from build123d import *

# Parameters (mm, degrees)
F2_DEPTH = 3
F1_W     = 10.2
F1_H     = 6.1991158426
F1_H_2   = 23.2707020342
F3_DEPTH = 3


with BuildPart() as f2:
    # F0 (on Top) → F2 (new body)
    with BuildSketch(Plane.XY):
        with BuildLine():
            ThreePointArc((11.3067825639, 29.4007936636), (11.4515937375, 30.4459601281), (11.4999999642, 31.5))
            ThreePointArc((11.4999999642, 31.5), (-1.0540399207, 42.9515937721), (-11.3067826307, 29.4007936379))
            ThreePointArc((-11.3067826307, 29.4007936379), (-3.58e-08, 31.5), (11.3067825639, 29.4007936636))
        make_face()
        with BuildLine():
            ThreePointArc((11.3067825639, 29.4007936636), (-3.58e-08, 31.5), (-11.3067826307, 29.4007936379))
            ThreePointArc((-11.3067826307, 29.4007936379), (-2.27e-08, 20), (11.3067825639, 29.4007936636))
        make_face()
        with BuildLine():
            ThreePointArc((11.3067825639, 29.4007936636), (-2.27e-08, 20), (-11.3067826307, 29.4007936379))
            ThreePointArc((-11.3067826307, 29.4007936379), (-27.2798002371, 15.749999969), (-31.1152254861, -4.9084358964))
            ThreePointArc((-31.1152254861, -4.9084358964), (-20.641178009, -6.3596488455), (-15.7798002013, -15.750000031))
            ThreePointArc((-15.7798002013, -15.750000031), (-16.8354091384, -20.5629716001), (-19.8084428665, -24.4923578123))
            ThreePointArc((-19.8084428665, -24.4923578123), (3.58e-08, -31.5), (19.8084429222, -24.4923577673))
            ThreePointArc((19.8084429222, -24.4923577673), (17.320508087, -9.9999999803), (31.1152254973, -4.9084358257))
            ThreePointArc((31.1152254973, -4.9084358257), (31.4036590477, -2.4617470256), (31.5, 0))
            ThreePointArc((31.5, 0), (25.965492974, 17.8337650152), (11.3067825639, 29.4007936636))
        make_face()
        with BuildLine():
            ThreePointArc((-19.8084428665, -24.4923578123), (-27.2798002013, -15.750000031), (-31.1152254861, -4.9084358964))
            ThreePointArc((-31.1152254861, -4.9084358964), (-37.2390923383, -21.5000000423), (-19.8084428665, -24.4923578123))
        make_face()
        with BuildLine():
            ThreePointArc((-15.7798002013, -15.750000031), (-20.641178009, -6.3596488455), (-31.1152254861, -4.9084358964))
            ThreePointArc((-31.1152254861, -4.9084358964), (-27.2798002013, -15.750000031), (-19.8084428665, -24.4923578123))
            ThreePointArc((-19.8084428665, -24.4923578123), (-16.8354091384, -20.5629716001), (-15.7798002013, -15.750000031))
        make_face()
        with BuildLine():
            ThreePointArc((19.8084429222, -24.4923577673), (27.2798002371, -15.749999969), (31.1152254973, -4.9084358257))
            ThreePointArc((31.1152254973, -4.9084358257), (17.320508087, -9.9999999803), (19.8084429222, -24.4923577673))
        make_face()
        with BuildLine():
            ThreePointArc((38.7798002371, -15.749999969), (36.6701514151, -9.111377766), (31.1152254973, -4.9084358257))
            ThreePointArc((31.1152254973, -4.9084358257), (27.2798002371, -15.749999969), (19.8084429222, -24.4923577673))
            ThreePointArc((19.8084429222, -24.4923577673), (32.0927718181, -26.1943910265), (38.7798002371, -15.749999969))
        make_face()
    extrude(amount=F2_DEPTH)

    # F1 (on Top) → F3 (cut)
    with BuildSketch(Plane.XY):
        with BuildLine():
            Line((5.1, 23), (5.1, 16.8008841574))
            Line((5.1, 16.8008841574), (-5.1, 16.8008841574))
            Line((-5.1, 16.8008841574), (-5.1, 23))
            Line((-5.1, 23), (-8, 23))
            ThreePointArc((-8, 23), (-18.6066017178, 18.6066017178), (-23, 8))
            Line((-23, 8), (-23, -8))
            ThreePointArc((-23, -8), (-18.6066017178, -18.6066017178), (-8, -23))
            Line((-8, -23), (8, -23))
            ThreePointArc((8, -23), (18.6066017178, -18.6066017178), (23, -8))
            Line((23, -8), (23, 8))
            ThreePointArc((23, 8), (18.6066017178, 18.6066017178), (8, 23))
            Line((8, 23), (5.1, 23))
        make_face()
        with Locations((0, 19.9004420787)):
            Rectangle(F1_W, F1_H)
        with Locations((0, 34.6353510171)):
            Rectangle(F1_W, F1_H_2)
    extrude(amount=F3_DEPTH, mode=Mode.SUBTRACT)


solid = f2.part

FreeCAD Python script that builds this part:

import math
import FreeCAD as App
import Part
import Sketcher

doc = App.newDocument("Part")
body = doc.addObject("PartDesign::Body", "Body")

# Sketch on XY plane
sketch1 = doc.addObject("Sketcher::SketchObject", "Sketch")
body.addObject(sketch1)
sketch1.AttachmentSupport = (doc.XY_Plane, [""])
sketch1.MapMode = "FlatFace"
sketch1.addGeometry([
    Part.ArcOfCircle(Part.Circle(App.Vector(0, 31.5, 0), App.Vector(0, 0, 1), 11.5), math.radians(-10.52), math.radians(0)),  # 0
    Part.ArcOfCircle(Part.Circle(App.Vector(0, 31.5, 0), App.Vector(0, 0, 1), 11.5), math.radians(0), math.radians(191)),  # 1
    Part.ArcOfCircle(Part.Circle(App.Vector(0, 0, 0), App.Vector(0, 0, 1), 31.5), math.radians(111), math.radians(189)),  # 2
    Part.ArcOfCircle(Part.Circle(App.Vector(-27.3, -15.8, 0), App.Vector(0, 0, 1), 11.5), math.radians(109), math.radians(311)),  # 3
    Part.ArcOfCircle(Part.Circle(App.Vector(0, 0, 0), App.Vector(0, 0, 1), 31.5), math.radians(-129), math.radians(-51)),  # 4
    Part.ArcOfCircle(Part.Circle(App.Vector(27.3, -15.7, 0), App.Vector(0, 0, 1), 11.5), math.radians(-131), math.radians(0)),  # 5
    Part.ArcOfCircle(Part.Circle(App.Vector(27.3, -15.7, 0), App.Vector(0, 0, 1), 11.5), math.radians(0), math.radians(71)),  # 6
    Part.ArcOfCircle(Part.Circle(App.Vector(0, 0, 0), App.Vector(0, 0, 1), 31.5), math.radians(-8.96), math.radians(0)),  # 7
    Part.ArcOfCircle(Part.Circle(App.Vector(0, 0, 0), App.Vector(0, 0, 1), 31.5), math.radians(0), math.radians(69)),  # 8
], False)
sketch1.addConstraint([
    Sketcher.Constraint("Tangent", 0, 2, 1, 1),
    Sketcher.Constraint("Coincident", 1, 2, 2, 1),
    Sketcher.Constraint("Coincident", 2, 2, 3, 1),
    Sketcher.Constraint("Coincident", 3, 2, 4, 1),
    Sketcher.Constraint("Coincident", 4, 2, 5, 1),
    Sketcher.Constraint("Tangent", 5, 2, 6, 1),
    Sketcher.Constraint("Coincident", 6, 2, 7, 1),
    Sketcher.Constraint("Tangent", 7, 2, 8, 1),
    Sketcher.Constraint("Coincident", 8, 2, 0, 1),
    Sketcher.Constraint("Coincident", 2, 3, -1, 1),
    Sketcher.Constraint("Coincident", 4, 3, -1, 1),
    Sketcher.Constraint("Coincident", 7, 3, -1, 1),
    Sketcher.Constraint("Equal", 0, 1),
    Sketcher.Constraint("Equal", 1, 3),
    Sketcher.Constraint("Equal", 2, 4),
    Sketcher.Constraint("Equal", 3, 5),
    Sketcher.Constraint("Equal", 5, 6),
    Sketcher.Constraint("Equal", 4, 7),
    Sketcher.Constraint("Equal", 7, 8),
    Sketcher.Constraint("Symmetric", 3, 3, 5, 3, -2),
    Sketcher.Constraint("PointOnObject", 0, 3, -2),
    Sketcher.Constraint("PointOnObject", 7, 2, -1),
    Sketcher.Constraint("Horizontal", 1, 3, 0, 2),
    Sketcher.Constraint("Horizontal", 6, 3, 5, 2),
    Sketcher.Constraint("Radius", 0, 11.5),
    Sketcher.Constraint("Radius", 2, 31.5),
    Sketcher.Constraint("DistanceY", -1, 1, 0, 3, 31.5),
    Sketcher.Constraint("DistanceY", 3, 3, -1, 1, 15.75),
    Sketcher.Constraint("DistanceX", 3, 3, -1, 1, 27.2798),
])
pad1 = doc.addObject("PartDesign::Pad", "Pad")
body.addObject(pad1)
pad1.Profile = sketch1
pad1.Length = 3

# Sketch on XY plane
sketch2 = doc.addObject("Sketcher::SketchObject", "Sketch001")
body.addObject(sketch2)
sketch2.AttachmentSupport = (doc.XY_Plane, [""])
sketch2.MapMode = "FlatFace"
sketch2.addGeometry([
    Part.ArcOfCircle(Part.Circle(App.Vector(-8, 8, 0), App.Vector(0, 0, 1), 15), math.radians(90), math.radians(180)),  # 0
    Part.LineSegment(App.Vector(-23, 8, 0), App.Vector(-23, -8, 0)),  # 1
    Part.ArcOfCircle(Part.Circle(App.Vector(-8, -8, 0), App.Vector(0, 0, 1), 15), math.radians(180), math.radians(270)),  # 2
    Part.LineSegment(App.Vector(-8, -23, 0), App.Vector(8, -23, 0)),  # 3
    Part.ArcOfCircle(Part.Circle(App.Vector(8, -8, 0), App.Vector(0, 0, 1), 15), math.radians(-90), math.radians(0)),  # 4
    Part.LineSegment(App.Vector(23, -8, 0), App.Vector(23, 8, 0)),  # 5
    Part.ArcOfCircle(Part.Circle(App.Vector(8, 8, 0), App.Vector(0, 0, 1), 15), math.radians(0), math.radians(90)),  # 6
    Part.LineSegment(App.Vector(8, 23, 0), App.Vector(5.1, 23, 0)),  # 7
    Part.LineSegment(App.Vector(5.1, 23, 0), App.Vector(5.1, 46.3, 0)),  # 8
    Part.LineSegment(App.Vector(5.1, 46.3, 0), App.Vector(-5.1, 46.3, 0)),  # 9
    Part.LineSegment(App.Vector(-5.1, 46.3, 0), App.Vector(-5.1, 23, 0)),  # 10
    Part.LineSegment(App.Vector(-5.1, 23, 0), App.Vector(-8, 23, 0)),  # 11
], False)
sketch2.addConstraint([
    Sketcher.Constraint("Tangent", 0, 2, 1, 1),
    Sketcher.Constraint("Tangent", 1, 2, 2, 1),
    Sketcher.Constraint("Tangent", 2, 2, 3, 1),
    Sketcher.Constraint("Tangent", 3, 2, 4, 1),
    Sketcher.Constraint("Tangent", 4, 2, 5, 1),
    Sketcher.Constraint("Tangent", 5, 2, 6, 1),
    Sketcher.Constraint("Tangent", 6, 2, 7, 1),
    Sketcher.Constraint("Coincident", 7, 2, 8, 1),
    Sketcher.Constraint("Coincident", 8, 2, 9, 1),
    Sketcher.Constraint("Coincident", 9, 2, 10, 1),
    Sketcher.Constraint("Coincident", 10, 2, 11, 1),
    Sketcher.Constraint("Tangent", 11, 2, 0, 1),
    Sketcher.Constraint("Vertical", 1),
    Sketcher.Constraint("Horizontal", 3),
    Sketcher.Constraint("Vertical", 5),
    Sketcher.Constraint("Horizontal", 7),
    Sketcher.Constraint("Vertical", 8),
    Sketcher.Constraint("Horizontal", 9),
    Sketcher.Constraint("Vertical", 10),
    Sketcher.Constraint("Horizontal", 11),
    Sketcher.Constraint("Equal", 0, 2),
    Sketcher.Constraint("Equal", 2, 4),
    Sketcher.Constraint("Equal", 4, 6),
    Sketcher.Constraint("Symmetric", 0, 3, 4, 3, -1, 1),
    Sketcher.Constraint("Symmetric", 7, 2, 10, 2, -2),
    Sketcher.Constraint("Equal", 3, 1),
    Sketcher.Constraint("Radius", 0, 15.0),
    Sketcher.Constraint("DistanceX", 3, 1, 3, 2, 16.0),
    Sketcher.Constraint("DistanceX", 7, 2, 7, 1, 2.9),
    Sketcher.Constraint("DistanceY", 8, 1, 8, 2, 23.270702),
])
pocket1 = doc.addObject("PartDesign::Pocket", "Pocket")
body.addObject(pocket1)
pocket1.Profile = sketch2
pocket1.Length = 3
pocket1.Reversed = True

doc.recompute()
